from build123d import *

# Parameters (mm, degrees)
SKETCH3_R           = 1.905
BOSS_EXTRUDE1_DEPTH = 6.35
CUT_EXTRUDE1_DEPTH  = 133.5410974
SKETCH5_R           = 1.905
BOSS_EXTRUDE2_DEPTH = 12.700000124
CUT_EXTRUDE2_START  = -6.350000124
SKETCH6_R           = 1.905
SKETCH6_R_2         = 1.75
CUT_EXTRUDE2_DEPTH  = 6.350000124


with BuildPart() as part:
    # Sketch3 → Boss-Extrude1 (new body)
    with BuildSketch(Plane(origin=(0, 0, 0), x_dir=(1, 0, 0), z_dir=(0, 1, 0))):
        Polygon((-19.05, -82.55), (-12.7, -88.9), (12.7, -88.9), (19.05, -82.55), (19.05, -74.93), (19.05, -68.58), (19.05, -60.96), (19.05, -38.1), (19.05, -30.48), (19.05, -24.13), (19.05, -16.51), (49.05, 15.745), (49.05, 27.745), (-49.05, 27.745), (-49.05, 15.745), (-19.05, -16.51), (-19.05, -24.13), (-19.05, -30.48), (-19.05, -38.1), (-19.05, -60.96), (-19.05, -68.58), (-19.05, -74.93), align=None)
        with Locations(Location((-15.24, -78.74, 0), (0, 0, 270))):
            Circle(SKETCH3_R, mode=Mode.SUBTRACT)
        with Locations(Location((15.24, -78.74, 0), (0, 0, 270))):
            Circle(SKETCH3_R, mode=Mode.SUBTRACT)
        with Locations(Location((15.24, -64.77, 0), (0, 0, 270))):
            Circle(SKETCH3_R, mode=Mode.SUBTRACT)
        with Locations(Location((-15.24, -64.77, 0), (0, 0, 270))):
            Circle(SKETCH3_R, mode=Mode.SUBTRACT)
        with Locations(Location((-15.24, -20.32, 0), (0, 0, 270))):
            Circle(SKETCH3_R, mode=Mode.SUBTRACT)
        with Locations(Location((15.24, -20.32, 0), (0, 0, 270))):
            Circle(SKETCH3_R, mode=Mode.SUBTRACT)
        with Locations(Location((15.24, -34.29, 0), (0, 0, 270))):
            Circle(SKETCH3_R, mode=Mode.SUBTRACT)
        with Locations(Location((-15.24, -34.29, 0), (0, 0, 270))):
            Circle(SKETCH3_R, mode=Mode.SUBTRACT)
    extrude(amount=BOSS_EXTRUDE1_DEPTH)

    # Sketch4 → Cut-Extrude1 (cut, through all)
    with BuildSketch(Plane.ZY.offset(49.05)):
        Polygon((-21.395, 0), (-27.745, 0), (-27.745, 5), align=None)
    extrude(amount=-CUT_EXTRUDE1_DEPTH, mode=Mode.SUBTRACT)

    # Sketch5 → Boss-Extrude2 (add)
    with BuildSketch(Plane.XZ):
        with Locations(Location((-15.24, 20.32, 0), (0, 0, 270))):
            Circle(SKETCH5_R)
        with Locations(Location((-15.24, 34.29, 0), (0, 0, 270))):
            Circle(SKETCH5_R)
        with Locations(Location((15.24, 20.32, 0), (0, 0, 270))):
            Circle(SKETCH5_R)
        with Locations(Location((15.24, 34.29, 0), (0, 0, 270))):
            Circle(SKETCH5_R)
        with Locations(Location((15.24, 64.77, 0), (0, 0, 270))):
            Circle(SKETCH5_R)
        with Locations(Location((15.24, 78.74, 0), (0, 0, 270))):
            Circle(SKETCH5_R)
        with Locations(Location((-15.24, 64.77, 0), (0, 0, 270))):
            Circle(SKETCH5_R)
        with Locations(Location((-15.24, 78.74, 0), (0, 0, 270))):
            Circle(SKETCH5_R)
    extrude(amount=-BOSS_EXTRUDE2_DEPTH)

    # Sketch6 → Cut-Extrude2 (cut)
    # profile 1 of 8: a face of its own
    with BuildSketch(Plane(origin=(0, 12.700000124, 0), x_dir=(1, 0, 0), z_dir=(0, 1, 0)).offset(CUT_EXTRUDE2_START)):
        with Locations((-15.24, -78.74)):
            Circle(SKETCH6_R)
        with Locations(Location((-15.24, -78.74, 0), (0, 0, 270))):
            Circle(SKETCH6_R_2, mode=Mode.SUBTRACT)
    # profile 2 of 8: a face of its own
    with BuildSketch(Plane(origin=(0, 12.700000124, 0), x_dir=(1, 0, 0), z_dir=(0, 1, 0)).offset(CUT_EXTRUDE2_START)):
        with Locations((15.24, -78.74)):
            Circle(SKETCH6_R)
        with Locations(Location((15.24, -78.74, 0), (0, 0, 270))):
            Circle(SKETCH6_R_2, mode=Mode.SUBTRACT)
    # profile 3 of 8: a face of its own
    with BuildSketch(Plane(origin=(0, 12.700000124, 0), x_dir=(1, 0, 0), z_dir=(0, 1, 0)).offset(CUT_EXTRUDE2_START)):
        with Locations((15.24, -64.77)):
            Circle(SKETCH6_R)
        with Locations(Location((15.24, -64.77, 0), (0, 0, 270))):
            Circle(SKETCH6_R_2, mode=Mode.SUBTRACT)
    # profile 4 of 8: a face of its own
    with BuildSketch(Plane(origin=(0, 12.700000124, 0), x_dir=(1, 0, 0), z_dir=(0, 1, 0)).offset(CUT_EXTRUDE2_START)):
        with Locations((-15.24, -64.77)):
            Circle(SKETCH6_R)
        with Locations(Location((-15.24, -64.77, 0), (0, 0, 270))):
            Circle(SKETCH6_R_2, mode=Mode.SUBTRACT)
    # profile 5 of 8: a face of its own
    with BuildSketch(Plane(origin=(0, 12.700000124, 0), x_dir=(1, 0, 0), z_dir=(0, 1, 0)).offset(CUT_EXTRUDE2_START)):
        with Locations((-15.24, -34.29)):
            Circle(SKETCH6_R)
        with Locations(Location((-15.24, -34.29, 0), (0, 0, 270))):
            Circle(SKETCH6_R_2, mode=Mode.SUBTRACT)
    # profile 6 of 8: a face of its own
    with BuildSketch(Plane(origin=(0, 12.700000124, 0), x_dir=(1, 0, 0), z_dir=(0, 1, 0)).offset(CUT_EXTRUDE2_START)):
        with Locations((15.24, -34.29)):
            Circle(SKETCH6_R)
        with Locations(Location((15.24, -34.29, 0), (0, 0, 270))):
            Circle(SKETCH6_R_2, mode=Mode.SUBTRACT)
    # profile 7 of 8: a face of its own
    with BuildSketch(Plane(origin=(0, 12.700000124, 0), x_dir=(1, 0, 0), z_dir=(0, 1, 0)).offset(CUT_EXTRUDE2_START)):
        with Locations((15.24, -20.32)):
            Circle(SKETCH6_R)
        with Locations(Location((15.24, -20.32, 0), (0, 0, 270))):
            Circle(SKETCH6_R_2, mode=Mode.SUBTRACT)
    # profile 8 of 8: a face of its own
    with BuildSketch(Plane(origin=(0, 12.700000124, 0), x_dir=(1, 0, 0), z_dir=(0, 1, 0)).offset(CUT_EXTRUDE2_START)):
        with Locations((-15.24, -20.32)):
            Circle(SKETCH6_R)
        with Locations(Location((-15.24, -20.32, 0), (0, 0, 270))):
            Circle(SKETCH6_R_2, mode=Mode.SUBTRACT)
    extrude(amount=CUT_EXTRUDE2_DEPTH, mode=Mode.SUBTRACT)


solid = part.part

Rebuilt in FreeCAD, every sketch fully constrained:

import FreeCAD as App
import Part
import Sketcher
Q = App.Units.Quantity

doc = App.newDocument("Part")
body = doc.addObject("PartDesign::Body", "Body")

sketch1 = body.newObject("Sketcher::SketchObject", "Sketch")
sketch1.AttachmentSupport = (doc.getObject("XZ_Plane"), [""])
sketch1.MapMode = "FlatFace"
sketch1.addGeometry([
    Part.LineSegment(App.Vector(-19.05, 82.55, 0), App.Vector(-12.7, 88.9, 0)),
    Part.LineSegment(App.Vector(-12.7, 88.9, 0), App.Vector(12.7, 88.9, 0)),
    Part.LineSegment(App.Vector(12.7, 88.9, 0), App.Vector(19.05, 82.55, 0)),
    Part.LineSegment(App.Vector(19.05, 82.55, 0), App.Vector(19.05, 16.51, 0)),
    Part.LineSegment(App.Vector(19.05, 16.51, 0), App.Vector(49.05, -15.745, 0)),
    Part.LineSegment(App.Vector(49.05, -15.745, 0), App.Vector(49.05, -27.745, 0)),
    Part.LineSegment(App.Vector(49.05, -27.745, 0), App.Vector(-49.05, -27.745, 0)),
    Part.LineSegment(App.Vector(-49.05, -27.745, 0), App.Vector(-49.05, -15.745, 0)),
    Part.LineSegment(App.Vector(-49.05, -15.745, 0), App.Vector(-19.05, 16.51, 0)),
    Part.LineSegment(App.Vector(-19.05, 16.51, 0), App.Vector(-19.05, 82.55, 0)),
    Part.Circle(App.Vector(-15.24, 78.74, 0), App.Vector(0, 0, 1), 1.905),
    Part.Circle(App.Vector(-15.24, 64.77, 0), App.Vector(0, 0, 1), 1.905),
    Part.Circle(App.Vector(15.24, 78.74, 0), App.Vector(0, 0, 1), 1.905),
    Part.Circle(App.Vector(15.24, 64.77, 0), App.Vector(0, 0, 1), 1.905),
    Part.Circle(App.Vector(-15.24, 34.29, 0), App.Vector(0, 0, 1), 1.905),
    Part.Circle(App.Vector(-15.24, 20.32, 0), App.Vector(0, 0, 1), 1.905),
    Part.Circle(App.Vector(15.24, 34.29, 0), App.Vector(0, 0, 1), 1.905),
    Part.Circle(App.Vector(15.24, 20.32, 0), App.Vector(0, 0, 1), 1.905),
], False)
sketch1.addConstraint([
    Sketcher.Constraint("Coincident", 0, 2, 1, 1),
    Sketcher.Constraint("Coincident", 1, 2, 2, 1),
    Sketcher.Constraint("Coincident", 2, 2, 3, 1),
    Sketcher.Constraint("Coincident", 3, 2, 4, 1),
    Sketcher.Constraint("Coincident", 4, 2, 5, 1),
    Sketcher.Constraint("Coincident", 5, 2, 6, 1),
    Sketcher.Constraint("Coincident", 6, 2, 7, 1),
    Sketcher.Constraint("Coincident", 7, 2, 8, 1),
    Sketcher.Constraint("Coincident", 8, 2, 9, 1),
    Sketcher.Constraint("Coincident", 9, 2, 0, 1),
    Sketcher.Constraint("Horizontal", 1),
    Sketcher.Constraint("Vertical", 3),
    Sketcher.Constraint("Vertical", 5),
    Sketcher.Constraint("Horizontal", 6),
    Sketcher.Constraint("Vertical", 7),
    Sketcher.Constraint("Vertical", 9),
    Sketcher.Constraint("Equal", 10, 11),
    Sketcher.Constraint("Equal", 11, 12),
    Sketcher.Constraint("Equal", 12, 13),
    Sketcher.Constraint("Equal", 13, 14),
    Sketcher.Constraint("Equal", 14, 15),
    Sketcher.Constraint("Equal", 15, 16),
    Sketcher.Constraint("Equal", 16, 17),
    Sketcher.Constraint("Symmetric", 10, 3, 12, 3, -2),
    Sketcher.Constraint("Symmetric", 11, 3, 13, 3, -2),
    Sketcher.Constraint("Symmetric", 14, 3, 16, 3, -2),
    Sketcher.Constraint("Symmetric", 15, 3, 17, 3, -2),
    Sketcher.Constraint("Symmetric", 4, 2, 7, 2, -2),
    Sketcher.Constraint("Symmetric", 3, 2, 8, 2, -2),
    Sketcher.Constraint("Perpendicular", 0, 2),
    Sketcher.Constraint("Horizontal", 2, 2, 9, 2),
    Sketcher.Constraint("Vertical", 10, 3, 11, 3),
    Sketcher.Constraint("Vertical", 11, 3, 14, 3),
    Sketcher.Constraint("Vertical", 14, 3, 15, 3),
    Sketcher.Constraint("Equal", 0, 2),
    Sketcher.Constraint("Diameter", 10, Q("0.15 in")),
    Sketcher.Constraint("DistanceX", 1, 1, 1, 2, Q("1 in")),
    Sketcher.Constraint("DistanceY", 3, 2, 3, 1, Q("2.6 in")),
    Sketcher.Constraint("DistanceX", 10, 3, -1, 1, Q("0.6 in")),
    Sketcher.Constraint("DistanceY", -1, 1, 10, 3, Q("3.1 in")),
    Sketcher.Constraint("DistanceY", -1, 1, 15, 3, Q("0.8 in")),
    Sketcher.Constraint("DistanceY", -1, 1, 0, 2, Q("3.5 in")),
    Sketcher.Constraint("DistanceY", 14, 3, 11, 3, Q("1.2 in")),
    Sketcher.Constraint("DistanceY", 13, 3, 2, 2, Q("0.7 in")),
    Sketcher.Constraint("DistanceX", 8, 2, 3, 2, Q("1.5 in")),
    Sketcher.Constraint("DistanceX", 6, 2, 6, 1, 98.1),
    Sketcher.Constraint("DistanceY", 5, 2, 5, 1, 12.0),
    Sketcher.Constraint("Distance", 4, 44.049802),
])
pad1 = body.newObject("PartDesign::Pad", "Pad")
pad1.Profile = sketch1
pad1.Length = Q("0.25 in")
pad1.Reversed = True

sketch2 = body.newObject("Sketcher::SketchObject", "Sketch001")
sketch2.AttachmentSupport = (doc.getObject("YZ_Plane"), [""])
sketch2.MapMode = "FlatFace"
sketch2.AttachmentOffset = App.Placement(App.Vector(0, 0, -49.05), App.Rotation())
sketch2.addGeometry([
    Part.LineSegment(App.Vector(0, -27.745, 0), App.Vector(0, -21.395, 0)),
    Part.LineSegment(App.Vector(0, -21.395, 0), App.Vector(5, -27.745, 0)),
    Part.LineSegment(App.Vector(5, -27.745, 0), App.Vector(0, -27.745, 0)),
], False)
sketch2.addConstraint([
    Sketcher.Constraint("Coincident", 0, 2, 1, 1),
    Sketcher.Constraint("Coincident", 1, 2, 2, 1),
    Sketcher.Constraint("Coincident", 2, 2, 0, 1),
    Sketcher.Constraint("Vertical", 0),
    Sketcher.Constraint("Horizontal", 2),
    Sketcher.Constraint("PointOnObject", 0, 2, -2),
    Sketcher.Constraint("DistanceY", 0, 1, 0, 2, Q("0.25 in")),
    Sketcher.Constraint("DistanceX", 2, 2, 2, 1, 5.0),
    Sketcher.Constraint("DistanceY", 0, 2, -1, 1, 21.395),
])
pocket1 = body.newObject("PartDesign::Pocket", "Pocket")
pocket1.Profile = sketch2
pocket1.Type = "ThroughAll"
pocket1.Reversed = True

sketch3 = body.newObject("Sketcher::SketchObject", "Sketch002")
sketch3.AttachmentSupport = (doc.getObject("XZ_Plane"), [""])
sketch3.MapMode = "FlatFace"
sketch3.addGeometry([
    Part.Circle(App.Vector(-15.24, 20.32, 0), App.Vector(0, 0, 1), 1.905),
    Part.Circle(App.Vector(-15.24, 34.29, 0), App.Vector(0, 0, 1), 1.905),
    Part.Circle(App.Vector(15.24, 20.32, 0), App.Vector(0, 0, 1), 1.905),
    Part.Circle(App.Vector(15.24, 34.29, 0), App.Vector(0, 0, 1), 1.905),
    Part.Circle(App.Vector(15.24, 64.77, 0), App.Vector(0, 0, 1), 1.905),
    Part.Circle(App.Vector(15.24, 78.74, 0), App.Vector(0, 0, 1), 1.905),
    Part.Circle(App.Vector(-15.24, 64.77, 0), App.Vector(0, 0, 1), 1.905),
    Part.Circle(App.Vector(-15.24, 78.74, 0), App.Vector(0, 0, 1), 1.905),
], False)
sketch3.addConstraint([
    Sketcher.Constraint("Equal", 0, 1),
    Sketcher.Constraint("Equal", 1, 2),
    Sketcher.Constraint("Equal", 2, 3),
    Sketcher.Constraint("Equal", 3, 4),
    Sketcher.Constraint("Equal", 4, 5),
    Sketcher.Constraint("Equal", 5, 6),
    Sketcher.Constraint("Equal", 6, 7),
    Sketcher.Constraint("Symmetric", 0, 3, 2, 3, -2),
    Sketcher.Constraint("Symmetric", 1, 3, 3, 3, -2),
    Sketcher.Constraint("Symmetric", 4, 3, 6, 3, -2),
    Sketcher.Constraint("Symmetric", 5, 3, 7, 3, -2),
    Sketcher.Constraint("Vertical", 0, 3, 1, 3),
    Sketcher.Constraint("Vertical", 3, 3, 4, 3),
    Sketcher.Constraint("Vertical", 4, 3, 5, 3),
    Sketcher.Constraint("Diameter", 0, Q("0.15 in")),
    Sketcher.Constraint("DistanceX", 0, 3, -1, 1, Q("0.6 in")),
    Sketcher.Constraint("DistanceY", -1, 1, 0, 3, Q("0.8 in")),
    Sketcher.Constraint("DistanceY", -1, 1, 5, 3, Q("3.1 in")),
    Sketcher.Constraint("DistanceY", 3, 3, 4, 3, Q("1.2 in")),
    Sketcher.Constraint("DistanceY", -1, 1, 1, 3, Q("1.35 in")),
])
pad2 = body.newObject("PartDesign::Pad", "Pad001")
pad2.Profile = sketch3
pad2.Length = Q("0.5 in")
pad2.Reversed = True

sketch4 = body.newObject("Sketcher::SketchObject", "Sketch003")
sketch4.AttachmentSupport = (doc.getObject("XZ_Plane"), [""])
sketch4.MapMode = "FlatFace"
sketch4.AttachmentOffset = App.Placement(App.Vector(0, 0, -0.25 * 25.4), App.Rotation())
sketch4.addGeometry([
    Part.Circle(App.Vector(-15.24, 78.74, 0), App.Vector(0, 0, 1), 1.905),
    Part.Circle(App.Vector(-15.24, 78.74, 0), App.Vector(0, 0, 1), 1.75),
    Part.Circle(App.Vector(15.24, 78.74, 0), App.Vector(0, 0, 1), 1.905),
    Part.Circle(App.Vector(15.24, 78.74, 0), App.Vector(0, 0, 1), 1.75),
    Part.Circle(App.Vector(15.24, 64.77, 0), App.Vector(0, 0, 1), 1.905),
    Part.Circle(App.Vector(15.24, 64.77, 0), App.Vector(0, 0, 1), 1.75),
    Part.Circle(App.Vector(-15.24, 64.77, 0), App.Vector(0, 0, 1), 1.905),
    Part.Circle(App.Vector(-15.24, 64.77, 0), App.Vector(0, 0, 1), 1.75),
    Part.Circle(App.Vector(-15.24, 34.29, 0), App.Vector(0, 0, 1), 1.905),
    Part.Circle(App.Vector(-15.24, 34.29, 0), App.Vector(0, 0, 1), 1.75),
    Part.Circle(App.Vector(15.24, 34.29, 0), App.Vector(0, 0, 1), 1.905),
    Part.Circle(App.Vector(15.24, 34.29, 0), App.Vector(0, 0, 1), 1.75),
    Part.Circle(App.Vector(15.24, 20.32, 0), App.Vector(0, 0, 1), 1.905),
    Part.Circle(App.Vector(15.24, 20.32, 0), App.Vector(0, 0, 1), 1.75),
    Part.Circle(App.Vector(-15.24, 20.32, 0), App.Vector(0, 0, 1), 1.905),
    Part.Circle(App.Vector(-15.24, 20.32, 0), App.Vector(0, 0, 1), 1.75),
], False)
sketch4.addConstraint([
    Sketcher.Constraint("Coincident", 1, 3, 0, 3),
    Sketcher.Constraint("Coincident", 3, 3, 2, 3),
    Sketcher.Constraint("Coincident", 5, 3, 4, 3),
    Sketcher.Constraint("Coincident", 7, 3, 6, 3),
    Sketcher.Constraint("Coincident", 9, 3, 8, 3),
    Sketcher.Constraint("Coincident", 11, 3, 10, 3),
    Sketcher.Constraint("Coincident", 13, 3, 12, 3),
    Sketcher.Constraint("Coincident", 15, 3, 14, 3),
    Sketcher.Constraint("Equal", 0, 2),
    Sketcher.Constraint("Equal", 1, 3),
    Sketcher.Constraint("Equal", 2, 4),
    Sketcher.Constraint("Equal", 3, 5),
    Sketcher.Constraint("Equal", 4, 6),
    Sketcher.Constraint("Equal", 5, 7),
    Sketcher.Constraint("Equal", 6, 8),
    Sketcher.Constraint("Equal", 7, 9),
    Sketcher.Constraint("Equal", 8, 10),
    Sketcher.Constraint("Equal", 9, 11),
    Sketcher.Constraint("Equal", 10, 12),
    Sketcher.Constraint("Equal", 11, 13),
    Sketcher.Constraint("Equal", 12, 14),
    Sketcher.Constraint("Equal", 13, 15),
    Sketcher.Constraint("Symmetric", 0, 3, 2, 3, -2),
    Sketcher.Constraint("Symmetric", 4, 3, 6, 3, -2),
    Sketcher.Constraint("Symmetric", 8, 3, 10, 3, -2),
    Sketcher.Constraint("Symmetric", 12, 3, 14, 3, -2),
    Sketcher.Constraint("Vertical", 3, 3, 4, 3),
    Sketcher.Constraint("Vertical", 7, 3, 8, 3),
    Sketcher.Constraint("Vertical", 11, 3, 12, 3),
    Sketcher.Constraint("Diameter", 0, Q("0.15 in")),
    Sketcher.Constraint("DistanceX", 0, 3, -1, 1, Q("0.6 in")),
    Sketcher.Constraint("DistanceY", -1, 1, 0, 3, Q("3.1 in")),
    Sketcher.Constraint("DistanceY", -1, 1, 12, 3, Q("0.8 in")),
    Sketcher.Constraint("DistanceY", 8, 3, 6, 3, Q("1.2 in")),
    Sketcher.Constraint("Diameter", 1, 3.5),
    Sketcher.Constraint("DistanceY", -1, 1, 4, 3, Q("2.55 in")),
])
pocket2 = body.newObject("PartDesign::Pocket", "Pocket001")
pocket2.Profile = sketch4
pocket2.Length = Q("0.25 in")

doc.recompute()
